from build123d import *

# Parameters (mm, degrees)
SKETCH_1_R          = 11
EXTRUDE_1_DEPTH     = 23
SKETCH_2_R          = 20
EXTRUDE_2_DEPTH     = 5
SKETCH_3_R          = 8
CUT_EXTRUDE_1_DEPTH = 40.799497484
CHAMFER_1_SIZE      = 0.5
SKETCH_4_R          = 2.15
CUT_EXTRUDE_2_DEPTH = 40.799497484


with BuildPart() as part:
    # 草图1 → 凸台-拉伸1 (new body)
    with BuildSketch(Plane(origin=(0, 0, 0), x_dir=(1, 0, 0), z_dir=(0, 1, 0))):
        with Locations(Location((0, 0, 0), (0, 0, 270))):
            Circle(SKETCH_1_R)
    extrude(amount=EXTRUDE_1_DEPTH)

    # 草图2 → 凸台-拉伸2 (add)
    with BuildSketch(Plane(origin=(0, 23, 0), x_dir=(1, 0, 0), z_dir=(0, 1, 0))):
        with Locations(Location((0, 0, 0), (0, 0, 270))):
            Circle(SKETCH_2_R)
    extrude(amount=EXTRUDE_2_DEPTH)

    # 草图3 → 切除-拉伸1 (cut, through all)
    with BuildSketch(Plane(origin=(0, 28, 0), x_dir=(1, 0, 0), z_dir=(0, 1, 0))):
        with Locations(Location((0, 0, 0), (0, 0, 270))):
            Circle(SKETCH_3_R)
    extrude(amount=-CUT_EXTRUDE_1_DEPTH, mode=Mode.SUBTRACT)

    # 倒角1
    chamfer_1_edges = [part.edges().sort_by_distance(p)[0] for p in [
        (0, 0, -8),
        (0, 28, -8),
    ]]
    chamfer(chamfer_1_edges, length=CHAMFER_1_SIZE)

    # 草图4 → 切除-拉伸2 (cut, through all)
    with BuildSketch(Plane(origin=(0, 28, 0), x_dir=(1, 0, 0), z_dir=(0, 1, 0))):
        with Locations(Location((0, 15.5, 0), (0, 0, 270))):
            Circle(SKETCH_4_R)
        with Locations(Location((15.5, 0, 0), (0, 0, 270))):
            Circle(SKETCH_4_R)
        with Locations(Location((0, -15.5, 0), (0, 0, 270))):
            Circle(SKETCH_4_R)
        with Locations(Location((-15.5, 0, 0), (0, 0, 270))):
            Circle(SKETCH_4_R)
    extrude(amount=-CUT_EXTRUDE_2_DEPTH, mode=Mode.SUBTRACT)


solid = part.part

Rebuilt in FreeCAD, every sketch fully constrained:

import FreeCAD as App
import Part
import Sketcher
Q = App.Units.Quantity


def edges_at(feature, points):
    """Names of the edges that pass closest to the given points."""
    edges = feature.Shape.Edges
    near = lambda p: min(range(len(edges)), key=lambda i: edges[i].distToShape(Part.Vertex(*p))[0])
    return sorted({f"Edge{near(p) + 1}" for p in points})

doc = App.newDocument("Part")
body = doc.addObject("PartDesign::Body", "Body")

sketch1 = body.newObject("Sketcher::SketchObject", "Sketch")
sketch1.AttachmentSupport = (doc.getObject("XZ_Plane"), [""])
sketch1.MapMode = "FlatFace"
sketch1.addGeometry(Part.Circle(App.Vector(0, 0, 0), App.Vector(0, 0, 1), 11), False)
sketch1.addConstraint(Sketcher.Constraint("Coincident", 0, 3, -1, 1))
sketch1.addConstraint(Sketcher.Constraint("Diameter", 0, Q("22 mm")))
pad1 = body.newObject("PartDesign::Pad", "Pad")
pad1.Profile = sketch1
pad1.Length = 23
pad1.Reversed = True

sketch2 = body.newObject("Sketcher::SketchObject", "Sketch001")
sketch2.AttachmentSupport = (doc.getObject("XZ_Plane"), [""])
sketch2.MapMode = "FlatFace"
sketch2.AttachmentOffset = App.Placement(App.Vector(0, 0, -23), App.Rotation())
sketch2.addGeometry(Part.Circle(App.Vector(0, 0, 0), App.Vector(0, 0, 1), 20), False)
sketch2.addConstraint(Sketcher.Constraint("Coincident", 0, 3, -1, 1))
sketch2.addConstraint(Sketcher.Constraint("Diameter", 0, Q("40 mm")))
pad2 = body.newObject("PartDesign::Pad", "Pad001")
pad2.Profile = sketch2
pad2.Length = 5
pad2.Reversed = True

sketch3 = body.newObject("Sketcher::SketchObject", "Sketch002")
sketch3.AttachmentSupport = (doc.getObject("XZ_Plane"), [""])
sketch3.MapMode = "FlatFace"
sketch3.AttachmentOffset = App.Placement(App.Vector(0, 0, -28), App.Rotation())
sketch3.addGeometry(Part.Circle(App.Vector(0, 0, 0), App.Vector(0, 0, 1), 8), False)
sketch3.addConstraint(Sketcher.Constraint("Coincident", 0, 3, -1, 1))
sketch3.addConstraint(Sketcher.Constraint("Diameter", 0, Q("16 mm")))
pocket1 = body.newObject("PartDesign::Pocket", "Pocket")
pocket1.Profile = sketch3
pocket1.Type = "ThroughAll"
pocket1.Reversed = True
doc.recompute()

chamfer = body.newObject("PartDesign::Chamfer", "Chamfer")
chamfer.Base = (pocket1, edges_at(pocket1, [(0, 0, -8), (0, 28, -8)]))
chamfer.Size = 0.5

sketch4 = body.newObject("Sketcher::SketchObject", "Sketch003")
sketch4.AttachmentSupport = (doc.getObject("XZ_Plane"), [""])
sketch4.MapMode = "FlatFace"
sketch4.AttachmentOffset = App.Placement(App.Vector(0, 0, -28), App.Rotation())
sketch4.addGeometry(Part.Circle(App.Vector(0, -15.5, 0), App.Vector(0, 0, 1), 2.1), False)
sketch4.addGeometry(Part.Circle(App.Vector(15.5, 0, 0), App.Vector(0, 0, 1), 2.1), False)
sketch4.addGeometry(Part.Circle(App.Vector(0, 15.5, 0), App.Vector(0, 0, 1), 2.1), False)
sketch4.addGeometry(Part.Circle(App.Vector(-15.5, 0, 0), App.Vector(0, 0, 1), 2.1), False)
sketch4.addConstraint(Sketcher.Constraint("Equal", 0, 1))
sketch4.addConstraint(Sketcher.Constraint("Equal", 1, 2))
sketch4.addConstraint(Sketcher.Constraint("Equal", 2, 3))
sketch4.addConstraint(Sketcher.Constraint("Symmetric", 0, 3, 2, 3, -1, 1))
sketch4.addConstraint(Sketcher.Constraint("Symmetric", 1, 3, 3, 3, -1, 1))
sketch4.addConstraint(Sketcher.Constraint("PointOnObject", 0, 3, -2))
sketch4.addConstraint(Sketcher.Constraint("PointOnObject", 1, 3, -1))
sketch4.addConstraint(Sketcher.Constraint("Diameter", 0, Q("4.3 mm")))
sketch4.addConstraint(Sketcher.Constraint("DistanceY", 0, 3, 2, 3, Q("31 mm")))
sketch4.addConstraint(Sketcher.Constraint("DistanceX", 3, 3, 1, 3, Q("31 mm")))
pocket2 = body.newObject("PartDesign::Pocket", "Pocket001")
pocket2.Profile = sketch4
pocket2.Type = "ThroughAll"
pocket2.Reversed = True

doc.recompute()
